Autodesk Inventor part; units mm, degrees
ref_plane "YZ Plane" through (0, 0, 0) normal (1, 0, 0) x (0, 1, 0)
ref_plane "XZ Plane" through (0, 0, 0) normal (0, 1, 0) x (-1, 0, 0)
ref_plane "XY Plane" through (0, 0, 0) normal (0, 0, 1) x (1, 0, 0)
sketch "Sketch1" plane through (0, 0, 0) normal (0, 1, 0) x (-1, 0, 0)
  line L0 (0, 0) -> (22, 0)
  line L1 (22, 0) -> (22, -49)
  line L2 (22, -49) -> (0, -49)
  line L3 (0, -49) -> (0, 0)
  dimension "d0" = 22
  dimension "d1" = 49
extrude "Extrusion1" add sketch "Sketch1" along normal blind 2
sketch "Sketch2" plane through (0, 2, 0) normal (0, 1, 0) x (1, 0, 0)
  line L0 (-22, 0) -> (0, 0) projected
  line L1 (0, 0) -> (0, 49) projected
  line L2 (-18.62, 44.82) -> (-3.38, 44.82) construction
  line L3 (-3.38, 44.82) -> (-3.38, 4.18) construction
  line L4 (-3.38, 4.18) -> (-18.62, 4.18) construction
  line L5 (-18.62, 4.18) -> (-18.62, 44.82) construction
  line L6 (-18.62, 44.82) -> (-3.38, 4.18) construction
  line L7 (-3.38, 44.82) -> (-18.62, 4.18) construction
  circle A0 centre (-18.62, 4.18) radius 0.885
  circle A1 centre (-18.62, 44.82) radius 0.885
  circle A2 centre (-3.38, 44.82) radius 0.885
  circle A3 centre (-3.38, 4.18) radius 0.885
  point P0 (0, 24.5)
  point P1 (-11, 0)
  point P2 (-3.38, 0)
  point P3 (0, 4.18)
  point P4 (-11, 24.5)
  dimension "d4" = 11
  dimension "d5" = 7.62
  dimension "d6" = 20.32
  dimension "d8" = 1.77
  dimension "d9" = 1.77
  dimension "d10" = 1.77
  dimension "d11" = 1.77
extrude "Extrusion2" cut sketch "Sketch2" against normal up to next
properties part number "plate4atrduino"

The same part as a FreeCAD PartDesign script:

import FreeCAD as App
import Part
import Sketcher

V = App.Vector


def add_polygon(sketch, points):
    """Adds a closed chain of lines whose ends are joined by coincident constraints."""
    first, n = sketch.GeometryCount, len(points)
    for a, b in zip(points, points[1:] + points[:1]):
        sketch.addGeometry(Part.LineSegment(App.Vector(*a, 0), App.Vector(*b, 0)), False)
    for i in range(n):
        sketch.addConstraint(Sketcher.Constraint("Coincident", first + i, 2, first + (i + 1) % n, 1))

doc = App.newDocument("Part")
params = doc.addObject("Spreadsheet::Sheet", "Params")
for row, (alias, value) in enumerate([
    ("sketch1_width", "22 mm"),
    ("sketch1_height", "49 mm"),
    ("pad1_length", "2 mm"),
    ("sketch2_diameter", "1.77 mm"),
], start=1):
    params.set(f"A{row}", alias)
    params.set(f"B{row}", "=" + value)
    params.setAlias(f"B{row}", alias)

body = doc.addObject("PartDesign::Body", "Body")

sketch1 = body.newObject("Sketcher::SketchObject", "Sketch")
sketch1.AttachmentSupport = (doc.getObject("XZ_Plane"), [""])
sketch1.MapMode = "FlatFace"
add_polygon(sketch1, [(-22, 0), (0, 0), (0, -49), (-22, -49)])
sketch1.addConstraint(Sketcher.Constraint("Horizontal", 0))
sketch1.addConstraint(Sketcher.Constraint("Vertical", 1))
sketch1.addConstraint(Sketcher.Constraint("Horizontal", 2))
sketch1.addConstraint(Sketcher.Constraint("Vertical", 3))
sketch1.addConstraint(Sketcher.Constraint("Coincident", 0, 2, -1, 1))
sketch1.addConstraint(Sketcher.Constraint("DistanceX", 0, 1, 0, 2, 22.0))
sketch1.addConstraint(Sketcher.Constraint("DistanceY", 1, 2, 1, 1, 49.0))
sketch1.setExpression("Constraints[9]", "Params.sketch1_width")
sketch1.setExpression("Constraints[10]", "Params.sketch1_height")
pad1 = body.newObject("PartDesign::Pad", "Pad")
pad1.Profile = sketch1
pad1.setExpression("Length", "Params.pad1_length")
pad1.Reversed = True

sketch2 = body.newObject("Sketcher::SketchObject", "Sketch001")
sketch2.AttachmentSupport = (doc.getObject("XZ_Plane"), [""])
sketch2.MapMode = "FlatFace"
sketch2.AttachmentOffset = App.Placement(V(0, 0, -2), App.Rotation())
sketch2.addGeometry(Part.Circle(V(-18.6, -4.2, 0), V(0, 0, 1), 0.9), False)
sketch2.addGeometry(Part.Circle(V(-18.6, -44.8, 0), V(0, 0, 1), 0.9), False)
sketch2.addGeometry(Part.Circle(V(-3.4, -44.8, 0), V(0, 0, 1), 0.9), False)
sketch2.addGeometry(Part.Circle(V(-3.4, -4.2, 0), V(0, 0, 1), 0.9), False)
sketch2.addConstraint(Sketcher.Constraint("Equal", 0, 1))
sketch2.addConstraint(Sketcher.Constraint("Equal", 1, 2))
sketch2.addConstraint(Sketcher.Constraint("Equal", 2, 3))
sketch2.addConstraint(Sketcher.Constraint("Horizontal", 1, 3, 2, 3))
sketch2.addConstraint(Sketcher.Constraint("Horizontal", 0, 3, 3, 3))
sketch2.addConstraint(Sketcher.Constraint("Vertical", 0, 3, 1, 3))
sketch2.addConstraint(Sketcher.Constraint("Vertical", 2, 3, 3, 3))
sketch2.addConstraint(Sketcher.Constraint("Diameter", 0, 1.77))
sketch2.addConstraint(Sketcher.Constraint("DistanceX", 0, 3, -1, 1, 18.62))
sketch2.addConstraint(Sketcher.Constraint("DistanceY", 0, 3, -1, 1, 4.18))
sketch2.addConstraint(Sketcher.Constraint("DistanceY", 1, 3, -1, 1, 44.82))
sketch2.addConstraint(Sketcher.Constraint("DistanceX", 2, 3, -1, 1, 3.38))
sketch2.setExpression("Constraints[7]", "Params.sketch2_diameter")
pocket1 = body.newObject("PartDesign::Pocket", "Pocket")
pocket1.Profile = sketch2
pocket1.Type = "UpToFirst"
pocket1.Reversed = True

doc.recompute()
